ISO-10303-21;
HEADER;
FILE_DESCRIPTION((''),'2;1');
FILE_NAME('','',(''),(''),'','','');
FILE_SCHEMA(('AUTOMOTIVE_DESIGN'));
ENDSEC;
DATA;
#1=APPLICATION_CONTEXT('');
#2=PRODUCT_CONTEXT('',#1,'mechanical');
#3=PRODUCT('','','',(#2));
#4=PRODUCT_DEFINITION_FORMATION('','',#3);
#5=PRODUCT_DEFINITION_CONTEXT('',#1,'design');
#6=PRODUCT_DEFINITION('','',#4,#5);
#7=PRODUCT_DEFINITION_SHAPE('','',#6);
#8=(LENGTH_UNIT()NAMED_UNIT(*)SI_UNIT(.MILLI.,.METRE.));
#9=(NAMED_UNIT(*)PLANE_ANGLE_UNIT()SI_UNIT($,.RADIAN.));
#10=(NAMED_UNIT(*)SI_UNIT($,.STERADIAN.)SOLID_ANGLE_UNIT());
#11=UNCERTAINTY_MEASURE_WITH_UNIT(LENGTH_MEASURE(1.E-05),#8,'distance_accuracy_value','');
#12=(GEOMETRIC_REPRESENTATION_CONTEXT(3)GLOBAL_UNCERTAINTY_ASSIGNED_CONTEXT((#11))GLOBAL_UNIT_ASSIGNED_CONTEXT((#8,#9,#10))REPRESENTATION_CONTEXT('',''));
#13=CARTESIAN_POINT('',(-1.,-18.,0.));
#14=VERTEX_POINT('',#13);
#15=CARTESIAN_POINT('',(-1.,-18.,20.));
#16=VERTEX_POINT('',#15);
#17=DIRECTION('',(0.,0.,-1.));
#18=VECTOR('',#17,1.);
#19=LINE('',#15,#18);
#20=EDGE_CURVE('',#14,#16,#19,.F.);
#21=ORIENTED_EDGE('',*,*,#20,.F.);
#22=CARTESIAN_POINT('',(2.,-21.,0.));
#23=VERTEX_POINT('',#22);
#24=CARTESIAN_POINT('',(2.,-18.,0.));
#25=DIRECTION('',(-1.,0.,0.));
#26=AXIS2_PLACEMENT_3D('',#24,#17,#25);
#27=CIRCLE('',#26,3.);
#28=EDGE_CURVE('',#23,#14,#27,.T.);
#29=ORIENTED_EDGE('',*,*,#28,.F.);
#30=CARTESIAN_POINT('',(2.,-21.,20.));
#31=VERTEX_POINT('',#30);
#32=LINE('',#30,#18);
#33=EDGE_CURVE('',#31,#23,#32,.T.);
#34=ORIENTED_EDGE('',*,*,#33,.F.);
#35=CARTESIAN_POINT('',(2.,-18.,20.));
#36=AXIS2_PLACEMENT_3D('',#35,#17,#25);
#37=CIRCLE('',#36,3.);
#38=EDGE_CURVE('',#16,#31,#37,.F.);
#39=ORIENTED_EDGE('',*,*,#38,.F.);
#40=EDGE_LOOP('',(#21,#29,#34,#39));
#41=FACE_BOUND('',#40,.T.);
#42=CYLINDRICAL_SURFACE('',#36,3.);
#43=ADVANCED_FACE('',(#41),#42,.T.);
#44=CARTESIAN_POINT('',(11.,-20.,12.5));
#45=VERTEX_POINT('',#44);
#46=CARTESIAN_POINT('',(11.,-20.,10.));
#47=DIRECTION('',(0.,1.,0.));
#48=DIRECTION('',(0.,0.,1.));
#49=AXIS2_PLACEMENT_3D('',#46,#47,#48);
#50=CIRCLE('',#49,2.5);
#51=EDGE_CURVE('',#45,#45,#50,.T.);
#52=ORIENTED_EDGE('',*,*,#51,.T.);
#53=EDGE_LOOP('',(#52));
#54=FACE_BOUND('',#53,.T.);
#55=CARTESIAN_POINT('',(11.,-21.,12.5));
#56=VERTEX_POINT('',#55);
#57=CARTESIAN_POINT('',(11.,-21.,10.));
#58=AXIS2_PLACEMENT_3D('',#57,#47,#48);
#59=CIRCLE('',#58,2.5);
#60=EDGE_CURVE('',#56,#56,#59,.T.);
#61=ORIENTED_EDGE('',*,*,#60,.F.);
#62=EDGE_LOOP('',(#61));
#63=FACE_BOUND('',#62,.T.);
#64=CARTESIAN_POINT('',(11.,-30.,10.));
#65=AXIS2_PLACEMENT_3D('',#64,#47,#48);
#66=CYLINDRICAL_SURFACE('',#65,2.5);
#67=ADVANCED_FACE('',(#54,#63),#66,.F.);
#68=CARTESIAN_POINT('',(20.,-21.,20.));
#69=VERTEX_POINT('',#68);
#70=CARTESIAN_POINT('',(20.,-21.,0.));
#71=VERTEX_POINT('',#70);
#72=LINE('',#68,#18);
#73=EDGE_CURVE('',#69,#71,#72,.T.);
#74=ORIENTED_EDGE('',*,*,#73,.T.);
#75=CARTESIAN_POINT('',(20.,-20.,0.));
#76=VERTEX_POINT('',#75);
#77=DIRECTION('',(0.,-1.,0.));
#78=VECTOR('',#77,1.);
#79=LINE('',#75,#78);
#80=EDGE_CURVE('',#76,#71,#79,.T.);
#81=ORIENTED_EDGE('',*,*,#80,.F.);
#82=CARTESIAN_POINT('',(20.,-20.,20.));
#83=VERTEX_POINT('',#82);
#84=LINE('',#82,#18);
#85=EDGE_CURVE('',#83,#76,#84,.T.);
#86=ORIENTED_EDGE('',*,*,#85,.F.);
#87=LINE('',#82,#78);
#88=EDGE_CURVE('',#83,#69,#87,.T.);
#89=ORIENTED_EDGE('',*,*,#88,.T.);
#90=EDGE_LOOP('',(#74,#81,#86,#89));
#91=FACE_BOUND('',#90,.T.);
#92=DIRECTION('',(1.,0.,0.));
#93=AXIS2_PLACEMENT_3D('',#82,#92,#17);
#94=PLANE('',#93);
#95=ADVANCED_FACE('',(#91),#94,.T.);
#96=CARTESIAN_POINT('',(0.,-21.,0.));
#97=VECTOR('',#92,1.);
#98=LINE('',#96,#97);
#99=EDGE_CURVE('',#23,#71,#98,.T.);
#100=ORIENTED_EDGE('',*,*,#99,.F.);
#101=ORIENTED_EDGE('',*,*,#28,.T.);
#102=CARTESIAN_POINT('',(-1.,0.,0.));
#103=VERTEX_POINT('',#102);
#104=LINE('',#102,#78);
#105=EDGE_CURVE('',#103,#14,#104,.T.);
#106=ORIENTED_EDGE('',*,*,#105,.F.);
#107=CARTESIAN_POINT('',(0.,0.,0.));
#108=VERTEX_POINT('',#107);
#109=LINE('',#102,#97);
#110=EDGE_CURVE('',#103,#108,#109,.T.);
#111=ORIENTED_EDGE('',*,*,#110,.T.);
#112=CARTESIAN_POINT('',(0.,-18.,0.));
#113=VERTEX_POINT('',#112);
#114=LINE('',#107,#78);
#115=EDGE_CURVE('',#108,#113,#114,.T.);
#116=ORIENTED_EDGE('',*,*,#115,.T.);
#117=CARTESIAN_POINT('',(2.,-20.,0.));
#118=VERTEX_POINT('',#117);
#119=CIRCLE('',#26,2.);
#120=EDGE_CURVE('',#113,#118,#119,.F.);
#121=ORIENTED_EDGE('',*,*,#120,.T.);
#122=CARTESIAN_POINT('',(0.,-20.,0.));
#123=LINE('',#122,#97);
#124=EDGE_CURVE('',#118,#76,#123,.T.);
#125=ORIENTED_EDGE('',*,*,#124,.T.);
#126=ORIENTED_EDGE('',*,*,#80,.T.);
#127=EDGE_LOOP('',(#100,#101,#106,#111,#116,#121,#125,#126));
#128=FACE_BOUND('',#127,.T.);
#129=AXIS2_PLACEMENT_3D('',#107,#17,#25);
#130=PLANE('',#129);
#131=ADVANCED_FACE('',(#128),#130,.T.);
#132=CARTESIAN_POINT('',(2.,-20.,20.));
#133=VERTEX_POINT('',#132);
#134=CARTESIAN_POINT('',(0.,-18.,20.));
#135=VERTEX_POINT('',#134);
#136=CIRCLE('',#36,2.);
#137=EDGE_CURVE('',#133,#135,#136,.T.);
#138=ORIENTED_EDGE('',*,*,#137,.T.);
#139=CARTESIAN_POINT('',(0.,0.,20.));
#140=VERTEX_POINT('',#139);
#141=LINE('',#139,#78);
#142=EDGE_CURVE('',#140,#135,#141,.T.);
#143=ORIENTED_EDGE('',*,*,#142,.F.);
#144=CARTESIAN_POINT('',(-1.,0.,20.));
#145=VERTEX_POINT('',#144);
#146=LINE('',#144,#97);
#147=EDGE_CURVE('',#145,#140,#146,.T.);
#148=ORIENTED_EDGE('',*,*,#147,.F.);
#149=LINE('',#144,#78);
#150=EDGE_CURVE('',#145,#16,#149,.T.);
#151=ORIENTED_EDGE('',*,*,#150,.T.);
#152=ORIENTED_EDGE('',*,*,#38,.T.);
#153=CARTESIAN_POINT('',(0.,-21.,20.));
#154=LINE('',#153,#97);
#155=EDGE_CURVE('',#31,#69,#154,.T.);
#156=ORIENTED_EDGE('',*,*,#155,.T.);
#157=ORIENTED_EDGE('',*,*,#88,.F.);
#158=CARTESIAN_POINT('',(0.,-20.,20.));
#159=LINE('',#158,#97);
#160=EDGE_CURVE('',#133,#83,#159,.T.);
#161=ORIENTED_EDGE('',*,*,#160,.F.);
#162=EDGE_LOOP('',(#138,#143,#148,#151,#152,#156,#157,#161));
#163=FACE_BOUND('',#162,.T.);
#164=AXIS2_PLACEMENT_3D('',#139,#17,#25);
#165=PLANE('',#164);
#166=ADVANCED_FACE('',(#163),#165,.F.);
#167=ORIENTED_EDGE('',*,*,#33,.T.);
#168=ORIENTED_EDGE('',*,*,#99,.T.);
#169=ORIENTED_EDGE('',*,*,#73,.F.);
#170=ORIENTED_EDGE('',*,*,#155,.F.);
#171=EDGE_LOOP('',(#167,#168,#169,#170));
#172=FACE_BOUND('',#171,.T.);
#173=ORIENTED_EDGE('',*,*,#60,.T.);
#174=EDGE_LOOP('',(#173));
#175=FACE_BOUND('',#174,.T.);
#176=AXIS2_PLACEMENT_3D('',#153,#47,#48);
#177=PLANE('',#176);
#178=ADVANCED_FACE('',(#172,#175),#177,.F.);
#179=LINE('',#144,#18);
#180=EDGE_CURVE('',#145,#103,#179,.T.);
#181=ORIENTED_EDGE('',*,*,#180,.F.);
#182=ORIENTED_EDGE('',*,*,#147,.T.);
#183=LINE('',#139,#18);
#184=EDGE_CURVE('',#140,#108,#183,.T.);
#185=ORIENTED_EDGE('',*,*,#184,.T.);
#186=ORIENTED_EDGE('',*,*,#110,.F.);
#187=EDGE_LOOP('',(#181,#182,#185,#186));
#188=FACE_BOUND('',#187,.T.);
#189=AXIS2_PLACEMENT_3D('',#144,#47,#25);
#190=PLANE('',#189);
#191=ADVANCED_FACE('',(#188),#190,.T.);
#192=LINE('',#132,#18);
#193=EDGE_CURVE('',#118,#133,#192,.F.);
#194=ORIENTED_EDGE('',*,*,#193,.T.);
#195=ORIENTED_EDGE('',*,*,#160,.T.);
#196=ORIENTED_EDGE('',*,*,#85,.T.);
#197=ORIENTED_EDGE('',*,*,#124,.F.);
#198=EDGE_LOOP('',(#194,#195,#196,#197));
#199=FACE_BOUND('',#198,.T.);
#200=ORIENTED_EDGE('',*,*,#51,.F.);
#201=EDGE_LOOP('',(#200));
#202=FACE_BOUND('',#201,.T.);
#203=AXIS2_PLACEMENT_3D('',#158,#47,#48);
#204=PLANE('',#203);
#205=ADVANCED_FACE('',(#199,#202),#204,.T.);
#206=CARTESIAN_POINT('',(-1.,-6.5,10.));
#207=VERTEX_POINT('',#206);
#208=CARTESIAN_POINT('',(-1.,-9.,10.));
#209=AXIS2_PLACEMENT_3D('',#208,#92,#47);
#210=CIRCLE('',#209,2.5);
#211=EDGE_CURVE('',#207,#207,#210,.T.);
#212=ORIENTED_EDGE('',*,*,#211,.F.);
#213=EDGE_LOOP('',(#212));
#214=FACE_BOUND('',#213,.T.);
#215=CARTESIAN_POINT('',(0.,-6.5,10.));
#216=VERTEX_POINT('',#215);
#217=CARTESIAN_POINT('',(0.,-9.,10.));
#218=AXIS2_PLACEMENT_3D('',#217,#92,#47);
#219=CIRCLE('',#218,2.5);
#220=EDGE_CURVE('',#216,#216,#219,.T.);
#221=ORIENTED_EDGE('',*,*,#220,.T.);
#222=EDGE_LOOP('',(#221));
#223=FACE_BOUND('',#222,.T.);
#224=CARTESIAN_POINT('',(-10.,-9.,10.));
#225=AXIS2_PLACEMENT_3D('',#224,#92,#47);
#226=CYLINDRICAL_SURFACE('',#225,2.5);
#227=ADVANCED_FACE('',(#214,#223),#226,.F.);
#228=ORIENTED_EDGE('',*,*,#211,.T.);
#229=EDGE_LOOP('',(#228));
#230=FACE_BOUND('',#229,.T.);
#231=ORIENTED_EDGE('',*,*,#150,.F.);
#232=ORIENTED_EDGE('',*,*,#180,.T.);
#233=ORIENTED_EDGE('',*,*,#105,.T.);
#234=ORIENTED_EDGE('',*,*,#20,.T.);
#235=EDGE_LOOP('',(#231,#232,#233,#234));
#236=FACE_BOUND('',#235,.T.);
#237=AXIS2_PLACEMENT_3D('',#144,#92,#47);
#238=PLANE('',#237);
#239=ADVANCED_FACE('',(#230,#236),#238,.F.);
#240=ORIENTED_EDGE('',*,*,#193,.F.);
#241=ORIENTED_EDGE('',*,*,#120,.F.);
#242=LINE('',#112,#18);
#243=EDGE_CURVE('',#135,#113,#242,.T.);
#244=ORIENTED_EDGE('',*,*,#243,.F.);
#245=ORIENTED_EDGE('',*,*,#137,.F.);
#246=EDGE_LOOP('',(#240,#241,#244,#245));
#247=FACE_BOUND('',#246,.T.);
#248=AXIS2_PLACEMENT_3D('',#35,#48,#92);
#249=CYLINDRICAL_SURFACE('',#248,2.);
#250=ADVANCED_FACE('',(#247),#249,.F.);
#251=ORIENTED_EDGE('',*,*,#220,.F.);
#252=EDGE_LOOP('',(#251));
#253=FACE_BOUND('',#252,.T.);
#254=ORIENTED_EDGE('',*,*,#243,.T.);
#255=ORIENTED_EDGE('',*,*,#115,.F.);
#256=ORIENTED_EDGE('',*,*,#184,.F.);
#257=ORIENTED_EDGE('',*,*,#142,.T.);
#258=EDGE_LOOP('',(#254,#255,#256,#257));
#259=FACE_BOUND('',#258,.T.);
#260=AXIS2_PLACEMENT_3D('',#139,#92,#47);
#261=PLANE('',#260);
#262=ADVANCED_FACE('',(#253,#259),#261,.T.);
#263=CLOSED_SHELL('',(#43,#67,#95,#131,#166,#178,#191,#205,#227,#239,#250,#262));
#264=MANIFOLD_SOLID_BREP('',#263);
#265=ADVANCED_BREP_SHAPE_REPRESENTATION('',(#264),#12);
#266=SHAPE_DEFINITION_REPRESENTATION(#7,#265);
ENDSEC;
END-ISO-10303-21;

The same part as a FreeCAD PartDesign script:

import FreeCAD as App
import Part
import Sketcher
from FreeCAD import Vector


def edges_at(feature, points):
    """Names of the edges that pass closest to the given points."""
    edges = feature.Shape.Edges
    near = lambda p: min(range(len(edges)), key=lambda i: edges[i].distToShape(Part.Vertex(*p))[0])
    return sorted({f"Edge{near(p) + 1}" for p in points})

doc = App.newDocument("Part")
body = doc.addObject("PartDesign::Body", "Body")

sketch1 = body.newObject("Sketcher::SketchObject", "Sketch")
sketch1.AttachmentSupport = (doc.getObject("XY_Plane"), [""])
sketch1.MapMode = "FlatFace"
sketch1.addGeometry(Part.LineSegment(Vector(0, -20, 0), Vector(0, 0, 0)), False)
sketch1.addGeometry(Part.LineSegment(Vector(0, 0, 0), Vector(-1, 0, 0)), False)
sketch1.addGeometry(Part.LineSegment(Vector(-1, 0, 0), Vector(-1, -21, 0)), False)
sketch1.addGeometry(Part.LineSegment(Vector(-1, -21, 0), Vector(20, -21, 0)), False)
sketch1.addGeometry(Part.LineSegment(Vector(20, -21, 0), Vector(20, -20, 0)), False)
sketch1.addGeometry(Part.LineSegment(Vector(20, -20, 0), Vector(0, -20, 0)), False)
sketch1.addConstraint(Sketcher.Constraint("Coincident", 0, 2, 1, 1))
sketch1.addConstraint(Sketcher.Constraint("Coincident", 1, 2, 2, 1))
sketch1.addConstraint(Sketcher.Constraint("Coincident", 2, 2, 3, 1))
sketch1.addConstraint(Sketcher.Constraint("Coincident", 3, 2, 4, 1))
sketch1.addConstraint(Sketcher.Constraint("Coincident", 4, 2, 5, 1))
sketch1.addConstraint(Sketcher.Constraint("Coincident", 5, 2, 0, 1))
sketch1.addConstraint(Sketcher.Constraint("Vertical", 0))
sketch1.addConstraint(Sketcher.Constraint("Horizontal", 1))
sketch1.addConstraint(Sketcher.Constraint("Vertical", 2))
sketch1.addConstraint(Sketcher.Constraint("Horizontal", 3))
sketch1.addConstraint(Sketcher.Constraint("Vertical", 4))
sketch1.addConstraint(Sketcher.Constraint("Horizontal", 5))
sketch1.addConstraint(Sketcher.Constraint("Coincident", 0, 2, -1, 1))
sketch1.addConstraint(Sketcher.Constraint("Equal", 5, 0))
sketch1.addConstraint(Sketcher.Constraint("Equal", 3, 2))
sketch1.addConstraint(Sketcher.Constraint("DistanceX", 1, 2, 1, 1, 1.0))
sketch1.addConstraint(Sketcher.Constraint("DistanceX", 3, 1, 3, 2, 21.0))
pad1 = body.newObject("PartDesign::Pad", "Pad")
pad1.Profile = sketch1
pad1.Length = 20
doc.recompute()

fillet = body.newObject("PartDesign::Fillet", "Fillet")
fillet.Base = (pad1, edges_at(pad1, [(-1, -21, 10)]))
fillet.Radius = 3
doc.recompute()

fillet2 = body.newObject("PartDesign::Fillet", "Fillet001")
fillet2.Base = (fillet, edges_at(fillet, [(0, -20, 10)]))
fillet2.Radius = 2

sketch2 = body.newObject("Sketcher::SketchObject", "Sketch001")
sketch2.AttachmentSupport = (doc.getObject("YZ_Plane"), [""])
sketch2.MapMode = "FlatFace"
sketch2.addGeometry(Part.Circle(Vector(-9, 10, 0), Vector(0, 0, 1), 2.5), False)
sketch2.addConstraint(Sketcher.Constraint("Diameter", 0, 5.0))
sketch2.addConstraint(Sketcher.Constraint("DistanceX", 0, 3, -1, 1, 9.0))
sketch2.addConstraint(Sketcher.Constraint("DistanceY", -1, 1, 0, 3, 10.0))
pocket1 = body.newObject("PartDesign::Pocket", "Pocket")
pocket1.Profile = sketch2
pocket1.Length = 10

sketch3 = body.newObject("Sketcher::SketchObject", "Sketch002")
sketch3.AttachmentSupport = (doc.getObject("XZ_Plane"), [""])
sketch3.MapMode = "FlatFace"
sketch3.AttachmentOffset = App.Placement(Vector(0, 0, 20), App.Rotation())
sketch3.addGeometry(Part.Circle(Vector(11, 10, 0), Vector(0, 0, 1), 2.5), False)
sketch3.addConstraint(Sketcher.Constraint("Diameter", 0, 5.0))
sketch3.addConstraint(Sketcher.Constraint("DistanceX", -1, 1, 0, 3, 11.0))
sketch3.addConstraint(Sketcher.Constraint("DistanceY", -1, 1, 0, 3, 10.0))
pocket2 = body.newObject("PartDesign::Pocket", "Pocket001")
pocket2.Profile = sketch3
pocket2.Length = 10
pocket2.Reversed = True

doc.recompute()
